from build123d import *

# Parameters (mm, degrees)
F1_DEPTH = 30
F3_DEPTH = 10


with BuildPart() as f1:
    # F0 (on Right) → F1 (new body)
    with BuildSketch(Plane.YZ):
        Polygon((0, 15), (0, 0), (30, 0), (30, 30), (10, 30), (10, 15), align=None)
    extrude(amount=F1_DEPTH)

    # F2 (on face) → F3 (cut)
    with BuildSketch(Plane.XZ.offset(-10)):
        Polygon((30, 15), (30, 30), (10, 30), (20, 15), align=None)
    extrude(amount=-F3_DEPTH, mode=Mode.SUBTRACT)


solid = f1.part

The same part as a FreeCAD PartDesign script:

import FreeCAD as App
import Part
import Sketcher

V = App.Vector


def add_polygon(sketch, points):
    """Adds a closed chain of lines whose ends are joined by coincident constraints."""
    first, n = sketch.GeometryCount, len(points)
    for a, b in zip(points, points[1:] + points[:1]):
        sketch.addGeometry(Part.LineSegment(App.Vector(*a, 0), App.Vector(*b, 0)), False)
    for i in range(n):
        sketch.addConstraint(Sketcher.Constraint("Coincident", first + i, 2, first + (i + 1) % n, 1))

doc = App.newDocument("Part")
body = doc.addObject("PartDesign::Body", "Body")

# Sketch on YZ plane
sketch1 = body.newObject("Sketcher::SketchObject", "Sketch")
sketch1.AttachmentSupport = (doc.getObject("YZ_Plane"), [""])
sketch1.MapMode = "FlatFace"
add_polygon(sketch1, [(0, 15), (0, 0), (30, 0), (30, 30), (10, 30), (10, 15)])  # lines 0-5
sketch1.addConstraint(Sketcher.Constraint("Vertical", 0))
sketch1.addConstraint(Sketcher.Constraint("Horizontal", 1))
sketch1.addConstraint(Sketcher.Constraint("Vertical", 2))
sketch1.addConstraint(Sketcher.Constraint("Horizontal", 3))
sketch1.addConstraint(Sketcher.Constraint("Vertical", 4))
sketch1.addConstraint(Sketcher.Constraint("Horizontal", 5))
sketch1.addConstraint(Sketcher.Constraint("Coincident", 0, 2, -1, 1))
sketch1.addConstraint(Sketcher.Constraint("Equal", 1, 2))
sketch1.addConstraint(Sketcher.Constraint("Equal", 0, 4))
sketch1.addConstraint(Sketcher.Constraint("DistanceX", 1, 1, 1, 2, 30.0))
sketch1.addConstraint(Sketcher.Constraint("DistanceX", 3, 2, 3, 1, 20.0))
pad1 = body.newObject("PartDesign::Pad", "Pad")
pad1.Profile = sketch1
pad1.Length = 30

# Sketch on XZ plane
sketch2 = body.newObject("Sketcher::SketchObject", "Sketch001")
sketch2.AttachmentSupport = (doc.getObject("XZ_Plane"), [""])
sketch2.MapMode = "FlatFace"
sketch2.AttachmentOffset = App.Placement(V(0, 0, -10), App.Rotation())
add_polygon(sketch2, [(30, 15), (30, 30), (10, 30), (20, 15)])  # lines 0-3
sketch2.addConstraint(Sketcher.Constraint("Vertical", 0))
sketch2.addConstraint(Sketcher.Constraint("Horizontal", 1))
sketch2.addConstraint(Sketcher.Constraint("Horizontal", 3))
sketch2.addConstraint(Sketcher.Constraint("DistanceX", 1, 2, 1, 1, 20.0))
sketch2.addConstraint(Sketcher.Constraint("DistanceX", 3, 1, 3, 2, 10.0))
sketch2.addConstraint(Sketcher.Constraint("DistanceY", 0, 1, 0, 2, 15.0))
sketch2.addConstraint(Sketcher.Constraint("DistanceX", -1, 1, 0, 2, 30.0))
sketch2.addConstraint(Sketcher.Constraint("DistanceY", -1, 1, 0, 2, 30.0))
pocket1 = body.newObject("PartDesign::Pocket", "Pocket")
pocket1.Profile = sketch2
pocket1.Length = 10

doc.recompute()
